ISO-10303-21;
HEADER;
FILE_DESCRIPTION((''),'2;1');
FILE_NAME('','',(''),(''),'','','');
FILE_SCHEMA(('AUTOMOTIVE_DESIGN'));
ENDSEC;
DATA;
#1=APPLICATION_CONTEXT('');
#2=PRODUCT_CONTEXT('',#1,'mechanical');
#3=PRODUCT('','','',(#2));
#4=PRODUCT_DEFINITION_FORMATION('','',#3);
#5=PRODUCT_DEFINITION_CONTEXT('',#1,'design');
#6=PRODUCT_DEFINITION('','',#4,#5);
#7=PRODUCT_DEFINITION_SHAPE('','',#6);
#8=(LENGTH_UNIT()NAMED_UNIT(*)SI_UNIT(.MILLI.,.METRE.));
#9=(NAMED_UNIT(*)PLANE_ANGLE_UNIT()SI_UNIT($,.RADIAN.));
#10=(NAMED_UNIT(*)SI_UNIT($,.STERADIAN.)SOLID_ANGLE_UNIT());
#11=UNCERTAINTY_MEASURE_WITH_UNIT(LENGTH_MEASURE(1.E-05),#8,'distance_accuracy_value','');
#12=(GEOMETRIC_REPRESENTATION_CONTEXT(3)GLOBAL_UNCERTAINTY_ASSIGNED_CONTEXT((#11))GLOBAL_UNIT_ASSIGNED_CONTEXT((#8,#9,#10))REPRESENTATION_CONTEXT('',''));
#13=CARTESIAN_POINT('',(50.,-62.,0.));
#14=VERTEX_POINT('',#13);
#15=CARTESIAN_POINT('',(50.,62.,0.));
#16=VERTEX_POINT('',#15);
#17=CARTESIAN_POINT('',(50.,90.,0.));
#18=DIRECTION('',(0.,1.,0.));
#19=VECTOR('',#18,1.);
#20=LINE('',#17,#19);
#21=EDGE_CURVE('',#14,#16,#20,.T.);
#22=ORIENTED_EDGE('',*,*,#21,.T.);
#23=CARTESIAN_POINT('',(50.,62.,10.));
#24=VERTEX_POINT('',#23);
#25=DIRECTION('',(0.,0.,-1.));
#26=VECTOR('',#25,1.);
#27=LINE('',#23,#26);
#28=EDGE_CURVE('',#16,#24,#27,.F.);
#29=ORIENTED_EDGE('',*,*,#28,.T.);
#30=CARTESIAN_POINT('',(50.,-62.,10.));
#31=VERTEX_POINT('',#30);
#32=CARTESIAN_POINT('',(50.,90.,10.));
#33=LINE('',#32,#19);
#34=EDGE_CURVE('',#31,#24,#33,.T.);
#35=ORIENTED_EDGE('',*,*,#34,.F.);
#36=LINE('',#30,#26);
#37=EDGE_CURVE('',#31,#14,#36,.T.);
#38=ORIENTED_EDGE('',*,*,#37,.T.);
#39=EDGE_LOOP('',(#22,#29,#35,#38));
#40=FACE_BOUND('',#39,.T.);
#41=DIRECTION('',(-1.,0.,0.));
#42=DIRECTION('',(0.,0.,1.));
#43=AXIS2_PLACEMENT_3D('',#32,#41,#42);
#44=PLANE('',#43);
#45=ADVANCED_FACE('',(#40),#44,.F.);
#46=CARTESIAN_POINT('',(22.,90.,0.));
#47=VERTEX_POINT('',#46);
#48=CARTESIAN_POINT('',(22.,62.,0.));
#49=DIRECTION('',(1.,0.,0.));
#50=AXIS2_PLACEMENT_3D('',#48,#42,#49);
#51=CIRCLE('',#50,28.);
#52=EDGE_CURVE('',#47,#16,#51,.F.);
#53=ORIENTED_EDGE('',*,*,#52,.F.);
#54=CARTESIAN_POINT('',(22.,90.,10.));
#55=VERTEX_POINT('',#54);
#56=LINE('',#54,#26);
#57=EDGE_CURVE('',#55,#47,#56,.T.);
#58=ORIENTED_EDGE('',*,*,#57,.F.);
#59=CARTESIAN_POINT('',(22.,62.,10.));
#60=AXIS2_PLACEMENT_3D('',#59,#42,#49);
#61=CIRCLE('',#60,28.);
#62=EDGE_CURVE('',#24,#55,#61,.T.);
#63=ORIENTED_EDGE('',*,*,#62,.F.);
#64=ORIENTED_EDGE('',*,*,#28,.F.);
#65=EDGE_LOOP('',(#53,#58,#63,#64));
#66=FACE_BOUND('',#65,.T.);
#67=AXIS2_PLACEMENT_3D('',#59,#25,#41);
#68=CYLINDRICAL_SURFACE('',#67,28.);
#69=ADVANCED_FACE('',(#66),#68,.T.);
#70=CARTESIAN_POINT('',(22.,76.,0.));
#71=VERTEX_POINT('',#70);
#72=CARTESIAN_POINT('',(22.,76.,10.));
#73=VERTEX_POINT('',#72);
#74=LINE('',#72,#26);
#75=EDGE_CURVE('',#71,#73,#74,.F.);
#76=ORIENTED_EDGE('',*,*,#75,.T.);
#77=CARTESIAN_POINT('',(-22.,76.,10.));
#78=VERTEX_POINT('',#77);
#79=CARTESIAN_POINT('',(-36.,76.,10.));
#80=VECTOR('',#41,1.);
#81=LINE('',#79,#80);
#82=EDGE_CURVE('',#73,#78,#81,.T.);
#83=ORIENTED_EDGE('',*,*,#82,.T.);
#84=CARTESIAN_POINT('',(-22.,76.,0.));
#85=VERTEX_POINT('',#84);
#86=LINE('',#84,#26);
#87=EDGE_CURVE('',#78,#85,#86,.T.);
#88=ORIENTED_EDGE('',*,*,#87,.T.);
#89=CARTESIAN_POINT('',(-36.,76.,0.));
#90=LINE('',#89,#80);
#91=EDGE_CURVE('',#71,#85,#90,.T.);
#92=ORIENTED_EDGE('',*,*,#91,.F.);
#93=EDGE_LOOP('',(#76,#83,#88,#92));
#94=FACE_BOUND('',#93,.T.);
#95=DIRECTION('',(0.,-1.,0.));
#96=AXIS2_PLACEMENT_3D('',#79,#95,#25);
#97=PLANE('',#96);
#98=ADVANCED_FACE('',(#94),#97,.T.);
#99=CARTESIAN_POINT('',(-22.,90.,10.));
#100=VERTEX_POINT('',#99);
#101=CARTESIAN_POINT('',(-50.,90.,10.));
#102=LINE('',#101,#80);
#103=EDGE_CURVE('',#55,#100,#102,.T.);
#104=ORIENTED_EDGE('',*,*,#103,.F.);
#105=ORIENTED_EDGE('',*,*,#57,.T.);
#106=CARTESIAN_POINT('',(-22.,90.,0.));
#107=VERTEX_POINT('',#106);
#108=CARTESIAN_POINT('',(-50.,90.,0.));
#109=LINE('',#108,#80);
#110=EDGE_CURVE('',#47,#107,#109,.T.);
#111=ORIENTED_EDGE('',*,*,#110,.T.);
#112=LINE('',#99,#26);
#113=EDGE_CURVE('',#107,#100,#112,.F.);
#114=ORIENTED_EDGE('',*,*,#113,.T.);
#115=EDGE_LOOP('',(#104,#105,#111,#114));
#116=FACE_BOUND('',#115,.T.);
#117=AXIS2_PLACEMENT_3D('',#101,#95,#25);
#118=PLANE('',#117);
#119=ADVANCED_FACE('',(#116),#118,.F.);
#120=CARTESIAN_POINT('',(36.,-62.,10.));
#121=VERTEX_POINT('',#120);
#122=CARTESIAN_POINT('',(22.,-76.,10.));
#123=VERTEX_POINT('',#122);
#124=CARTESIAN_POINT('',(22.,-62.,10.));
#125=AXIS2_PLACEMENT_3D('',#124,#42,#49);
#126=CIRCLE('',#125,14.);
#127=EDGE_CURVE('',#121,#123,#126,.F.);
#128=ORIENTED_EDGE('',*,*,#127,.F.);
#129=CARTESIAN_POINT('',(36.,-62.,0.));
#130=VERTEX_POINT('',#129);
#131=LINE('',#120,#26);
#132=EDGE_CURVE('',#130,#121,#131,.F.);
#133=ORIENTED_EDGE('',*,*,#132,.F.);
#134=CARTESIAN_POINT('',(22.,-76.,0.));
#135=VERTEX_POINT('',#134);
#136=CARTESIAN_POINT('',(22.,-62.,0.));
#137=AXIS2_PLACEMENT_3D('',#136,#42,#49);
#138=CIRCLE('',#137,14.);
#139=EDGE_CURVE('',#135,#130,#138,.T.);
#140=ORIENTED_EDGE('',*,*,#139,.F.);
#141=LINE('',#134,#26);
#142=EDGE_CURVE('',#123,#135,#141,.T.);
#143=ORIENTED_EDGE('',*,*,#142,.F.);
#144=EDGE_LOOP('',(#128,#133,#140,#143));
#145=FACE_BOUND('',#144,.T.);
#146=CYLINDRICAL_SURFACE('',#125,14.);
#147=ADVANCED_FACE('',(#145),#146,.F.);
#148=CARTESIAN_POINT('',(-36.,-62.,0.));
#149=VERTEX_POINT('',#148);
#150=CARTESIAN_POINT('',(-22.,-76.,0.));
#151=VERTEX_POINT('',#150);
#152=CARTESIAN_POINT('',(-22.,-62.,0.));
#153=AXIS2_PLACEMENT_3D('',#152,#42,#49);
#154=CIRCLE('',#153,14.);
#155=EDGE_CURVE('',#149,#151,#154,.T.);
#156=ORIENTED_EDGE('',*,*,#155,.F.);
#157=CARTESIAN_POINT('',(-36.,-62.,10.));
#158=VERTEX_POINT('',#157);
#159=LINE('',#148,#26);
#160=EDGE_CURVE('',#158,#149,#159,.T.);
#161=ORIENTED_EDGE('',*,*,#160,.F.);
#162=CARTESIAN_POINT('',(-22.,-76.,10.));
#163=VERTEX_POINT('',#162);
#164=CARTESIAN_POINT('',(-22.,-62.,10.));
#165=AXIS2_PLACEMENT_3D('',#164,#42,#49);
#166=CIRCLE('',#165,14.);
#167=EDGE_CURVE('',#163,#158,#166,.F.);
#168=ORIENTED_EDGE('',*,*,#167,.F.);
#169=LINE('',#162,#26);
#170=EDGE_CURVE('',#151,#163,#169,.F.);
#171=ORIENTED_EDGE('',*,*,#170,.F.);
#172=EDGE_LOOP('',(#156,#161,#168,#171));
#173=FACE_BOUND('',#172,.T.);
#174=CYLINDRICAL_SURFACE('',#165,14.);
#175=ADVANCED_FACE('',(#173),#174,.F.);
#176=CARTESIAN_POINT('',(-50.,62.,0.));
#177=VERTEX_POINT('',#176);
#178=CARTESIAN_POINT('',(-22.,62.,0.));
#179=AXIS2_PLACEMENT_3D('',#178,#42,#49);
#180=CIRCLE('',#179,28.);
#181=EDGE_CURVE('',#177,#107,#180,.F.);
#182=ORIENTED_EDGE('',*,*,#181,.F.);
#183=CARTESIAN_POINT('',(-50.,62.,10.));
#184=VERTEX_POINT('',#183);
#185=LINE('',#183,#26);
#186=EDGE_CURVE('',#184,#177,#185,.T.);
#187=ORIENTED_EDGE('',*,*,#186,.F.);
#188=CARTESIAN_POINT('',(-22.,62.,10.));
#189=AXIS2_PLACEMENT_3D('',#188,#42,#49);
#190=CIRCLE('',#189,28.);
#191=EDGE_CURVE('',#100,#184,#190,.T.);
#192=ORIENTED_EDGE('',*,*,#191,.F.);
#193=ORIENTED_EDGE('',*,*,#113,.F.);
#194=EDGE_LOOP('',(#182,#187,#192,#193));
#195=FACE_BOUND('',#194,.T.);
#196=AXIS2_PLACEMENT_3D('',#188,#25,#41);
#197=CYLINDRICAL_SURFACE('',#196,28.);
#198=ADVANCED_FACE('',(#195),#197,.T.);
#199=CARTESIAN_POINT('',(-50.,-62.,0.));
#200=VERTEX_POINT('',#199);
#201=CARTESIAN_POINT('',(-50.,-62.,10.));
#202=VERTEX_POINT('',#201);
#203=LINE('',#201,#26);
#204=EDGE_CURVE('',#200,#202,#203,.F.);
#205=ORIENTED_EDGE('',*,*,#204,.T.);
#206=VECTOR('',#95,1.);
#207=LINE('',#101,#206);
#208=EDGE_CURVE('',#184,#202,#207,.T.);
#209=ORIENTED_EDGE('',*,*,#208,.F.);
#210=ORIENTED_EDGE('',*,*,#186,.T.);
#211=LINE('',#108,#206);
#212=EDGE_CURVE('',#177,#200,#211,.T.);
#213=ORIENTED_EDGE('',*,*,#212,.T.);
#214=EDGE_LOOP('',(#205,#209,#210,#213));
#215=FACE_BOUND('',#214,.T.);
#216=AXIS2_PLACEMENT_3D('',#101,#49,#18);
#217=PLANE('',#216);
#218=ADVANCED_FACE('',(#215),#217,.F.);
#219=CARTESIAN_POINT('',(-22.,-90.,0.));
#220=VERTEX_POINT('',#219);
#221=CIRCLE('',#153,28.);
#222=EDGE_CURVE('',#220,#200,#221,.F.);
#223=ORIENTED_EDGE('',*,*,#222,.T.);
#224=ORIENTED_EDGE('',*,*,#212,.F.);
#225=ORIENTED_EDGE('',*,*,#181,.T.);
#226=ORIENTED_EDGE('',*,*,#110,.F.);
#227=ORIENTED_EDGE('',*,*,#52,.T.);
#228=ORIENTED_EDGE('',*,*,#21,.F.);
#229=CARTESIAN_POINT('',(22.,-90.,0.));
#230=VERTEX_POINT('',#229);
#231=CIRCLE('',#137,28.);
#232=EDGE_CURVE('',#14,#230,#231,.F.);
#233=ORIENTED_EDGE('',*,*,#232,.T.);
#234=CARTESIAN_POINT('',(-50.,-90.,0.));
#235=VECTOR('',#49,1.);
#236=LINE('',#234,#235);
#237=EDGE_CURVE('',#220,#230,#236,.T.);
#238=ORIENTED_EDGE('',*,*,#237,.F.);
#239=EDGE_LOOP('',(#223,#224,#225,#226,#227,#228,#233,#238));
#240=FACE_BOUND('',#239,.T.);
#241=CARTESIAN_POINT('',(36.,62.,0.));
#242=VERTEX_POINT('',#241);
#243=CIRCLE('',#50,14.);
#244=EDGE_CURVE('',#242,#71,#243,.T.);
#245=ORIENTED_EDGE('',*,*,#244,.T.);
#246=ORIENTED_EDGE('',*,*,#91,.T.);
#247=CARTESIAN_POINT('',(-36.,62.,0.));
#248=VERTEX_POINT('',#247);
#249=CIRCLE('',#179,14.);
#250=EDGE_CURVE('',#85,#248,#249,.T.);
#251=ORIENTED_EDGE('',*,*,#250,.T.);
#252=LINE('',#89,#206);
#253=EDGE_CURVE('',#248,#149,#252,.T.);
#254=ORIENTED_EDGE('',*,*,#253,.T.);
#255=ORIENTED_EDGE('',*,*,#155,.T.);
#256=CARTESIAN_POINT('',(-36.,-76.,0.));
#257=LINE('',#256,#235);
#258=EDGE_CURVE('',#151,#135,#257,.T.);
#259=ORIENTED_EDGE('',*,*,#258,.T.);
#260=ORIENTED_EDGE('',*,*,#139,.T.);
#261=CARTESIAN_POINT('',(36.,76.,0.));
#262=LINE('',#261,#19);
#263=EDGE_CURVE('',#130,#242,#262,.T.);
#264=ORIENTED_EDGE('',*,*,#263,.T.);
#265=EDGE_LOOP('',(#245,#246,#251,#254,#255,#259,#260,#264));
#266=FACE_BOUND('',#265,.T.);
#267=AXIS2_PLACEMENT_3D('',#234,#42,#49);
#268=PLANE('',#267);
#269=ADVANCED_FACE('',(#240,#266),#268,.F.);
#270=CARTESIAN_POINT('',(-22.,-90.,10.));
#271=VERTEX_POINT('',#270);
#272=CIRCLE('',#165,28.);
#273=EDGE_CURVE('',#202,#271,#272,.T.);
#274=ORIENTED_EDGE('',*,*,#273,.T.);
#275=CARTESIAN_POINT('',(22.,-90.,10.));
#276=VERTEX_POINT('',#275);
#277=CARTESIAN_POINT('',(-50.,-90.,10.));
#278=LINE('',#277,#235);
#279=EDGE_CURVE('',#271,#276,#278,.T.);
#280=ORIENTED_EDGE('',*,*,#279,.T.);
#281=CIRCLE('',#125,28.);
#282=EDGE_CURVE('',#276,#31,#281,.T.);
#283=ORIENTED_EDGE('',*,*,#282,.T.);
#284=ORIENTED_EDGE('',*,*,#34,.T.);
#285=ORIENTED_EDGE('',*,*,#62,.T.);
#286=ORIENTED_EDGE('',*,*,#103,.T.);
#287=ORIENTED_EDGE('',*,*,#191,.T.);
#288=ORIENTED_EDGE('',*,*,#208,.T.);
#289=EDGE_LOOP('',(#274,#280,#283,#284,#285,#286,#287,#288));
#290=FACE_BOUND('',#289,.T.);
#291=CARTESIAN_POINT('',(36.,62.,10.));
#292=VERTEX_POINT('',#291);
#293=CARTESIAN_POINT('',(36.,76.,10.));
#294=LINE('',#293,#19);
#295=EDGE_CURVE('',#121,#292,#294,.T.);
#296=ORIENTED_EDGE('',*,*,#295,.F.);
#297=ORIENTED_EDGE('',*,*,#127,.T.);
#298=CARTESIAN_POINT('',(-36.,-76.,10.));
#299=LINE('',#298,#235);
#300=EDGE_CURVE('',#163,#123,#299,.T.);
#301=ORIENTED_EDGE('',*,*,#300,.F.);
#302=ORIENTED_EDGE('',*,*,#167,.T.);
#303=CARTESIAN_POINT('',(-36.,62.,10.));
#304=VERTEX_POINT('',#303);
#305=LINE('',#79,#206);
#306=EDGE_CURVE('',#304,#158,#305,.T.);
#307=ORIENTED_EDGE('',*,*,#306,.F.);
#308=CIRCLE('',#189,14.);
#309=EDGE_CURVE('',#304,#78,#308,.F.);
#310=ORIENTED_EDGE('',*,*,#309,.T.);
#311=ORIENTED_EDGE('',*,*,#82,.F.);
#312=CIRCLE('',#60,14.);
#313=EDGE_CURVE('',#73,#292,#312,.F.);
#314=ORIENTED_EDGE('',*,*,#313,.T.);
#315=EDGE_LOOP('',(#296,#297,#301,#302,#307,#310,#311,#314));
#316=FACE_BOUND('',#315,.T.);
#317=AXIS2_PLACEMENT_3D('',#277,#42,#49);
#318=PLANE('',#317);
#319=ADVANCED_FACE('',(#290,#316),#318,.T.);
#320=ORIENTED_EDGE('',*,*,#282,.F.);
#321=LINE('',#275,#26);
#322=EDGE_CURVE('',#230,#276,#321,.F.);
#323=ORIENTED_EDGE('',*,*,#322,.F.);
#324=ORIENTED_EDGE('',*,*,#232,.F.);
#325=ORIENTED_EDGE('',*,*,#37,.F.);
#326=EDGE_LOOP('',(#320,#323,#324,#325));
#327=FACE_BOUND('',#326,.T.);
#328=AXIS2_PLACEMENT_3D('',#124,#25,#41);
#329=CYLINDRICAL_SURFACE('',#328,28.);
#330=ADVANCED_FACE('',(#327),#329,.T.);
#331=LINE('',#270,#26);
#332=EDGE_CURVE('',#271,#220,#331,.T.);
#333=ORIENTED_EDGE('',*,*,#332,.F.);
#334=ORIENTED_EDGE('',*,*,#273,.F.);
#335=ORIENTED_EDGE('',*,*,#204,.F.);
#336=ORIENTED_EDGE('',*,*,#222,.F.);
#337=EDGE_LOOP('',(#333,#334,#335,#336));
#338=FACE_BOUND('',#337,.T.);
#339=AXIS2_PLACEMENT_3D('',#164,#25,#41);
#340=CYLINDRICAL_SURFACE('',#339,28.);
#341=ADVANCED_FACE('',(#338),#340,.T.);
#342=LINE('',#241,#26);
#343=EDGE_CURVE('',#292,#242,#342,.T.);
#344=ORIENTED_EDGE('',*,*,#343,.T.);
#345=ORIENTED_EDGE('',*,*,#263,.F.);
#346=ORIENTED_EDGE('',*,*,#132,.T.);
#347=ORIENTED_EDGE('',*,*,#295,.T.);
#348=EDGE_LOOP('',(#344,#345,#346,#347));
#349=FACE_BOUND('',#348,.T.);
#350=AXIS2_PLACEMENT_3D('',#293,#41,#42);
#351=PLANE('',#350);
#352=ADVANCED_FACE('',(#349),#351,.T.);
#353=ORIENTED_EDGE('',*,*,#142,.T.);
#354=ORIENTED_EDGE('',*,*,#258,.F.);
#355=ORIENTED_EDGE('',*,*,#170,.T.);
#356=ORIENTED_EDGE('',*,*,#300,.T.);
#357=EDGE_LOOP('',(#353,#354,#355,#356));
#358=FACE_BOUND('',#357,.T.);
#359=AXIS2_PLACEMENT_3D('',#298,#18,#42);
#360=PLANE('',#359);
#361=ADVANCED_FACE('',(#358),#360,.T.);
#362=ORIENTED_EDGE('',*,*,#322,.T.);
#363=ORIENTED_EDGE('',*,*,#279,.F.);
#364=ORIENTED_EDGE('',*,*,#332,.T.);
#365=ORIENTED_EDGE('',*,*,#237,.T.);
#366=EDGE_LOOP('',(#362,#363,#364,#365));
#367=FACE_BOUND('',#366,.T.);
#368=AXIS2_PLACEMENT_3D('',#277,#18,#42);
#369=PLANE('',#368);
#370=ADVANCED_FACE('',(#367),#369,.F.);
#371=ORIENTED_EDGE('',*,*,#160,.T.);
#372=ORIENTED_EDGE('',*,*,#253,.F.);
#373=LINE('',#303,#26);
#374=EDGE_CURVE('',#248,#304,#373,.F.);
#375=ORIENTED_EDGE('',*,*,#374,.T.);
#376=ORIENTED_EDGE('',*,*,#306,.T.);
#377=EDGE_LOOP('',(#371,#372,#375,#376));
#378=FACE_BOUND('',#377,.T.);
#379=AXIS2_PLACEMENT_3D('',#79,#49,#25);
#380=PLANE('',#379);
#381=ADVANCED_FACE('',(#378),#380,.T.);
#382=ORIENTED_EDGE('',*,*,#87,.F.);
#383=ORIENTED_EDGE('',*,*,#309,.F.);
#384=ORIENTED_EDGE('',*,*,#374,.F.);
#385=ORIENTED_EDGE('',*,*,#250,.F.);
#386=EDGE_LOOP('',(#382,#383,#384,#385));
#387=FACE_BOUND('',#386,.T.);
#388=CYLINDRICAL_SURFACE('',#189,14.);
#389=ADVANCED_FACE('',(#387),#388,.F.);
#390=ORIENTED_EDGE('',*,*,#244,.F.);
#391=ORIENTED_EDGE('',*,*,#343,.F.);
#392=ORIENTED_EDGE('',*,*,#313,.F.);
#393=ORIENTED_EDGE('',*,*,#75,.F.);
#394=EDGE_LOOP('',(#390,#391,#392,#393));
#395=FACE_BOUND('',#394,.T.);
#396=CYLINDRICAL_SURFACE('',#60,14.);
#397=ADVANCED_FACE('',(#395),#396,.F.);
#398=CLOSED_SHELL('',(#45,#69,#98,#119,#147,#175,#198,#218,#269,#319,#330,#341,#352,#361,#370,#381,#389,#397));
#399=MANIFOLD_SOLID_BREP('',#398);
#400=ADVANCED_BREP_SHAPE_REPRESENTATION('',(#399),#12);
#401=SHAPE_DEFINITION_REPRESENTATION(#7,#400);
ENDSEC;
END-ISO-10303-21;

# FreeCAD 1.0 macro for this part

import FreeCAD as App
import Part
import Sketcher

V = App.Vector
Q = App.Units.Quantity


def edges_at(feature, points):
    """Names of the edges that pass closest to the given points."""
    edges = feature.Shape.Edges
    near = lambda p: min(range(len(edges)), key=lambda i: edges[i].distToShape(Part.Vertex(*p))[0])
    return sorted({f"Edge{near(p) + 1}" for p in points})


def add_polygon(sketch, points):
    """Adds a closed chain of lines whose ends are joined by coincident constraints."""
    first, n = sketch.GeometryCount, len(points)
    for a, b in zip(points, points[1:] + points[:1]):
        sketch.addGeometry(Part.LineSegment(App.Vector(*a, 0), App.Vector(*b, 0)), False)
    for i in range(n):
        sketch.addConstraint(Sketcher.Constraint("Coincident", first + i, 2, first + (i + 1) % n, 1))

doc = App.newDocument("Part")
body = doc.addObject("PartDesign::Body", "Body")

# Sketch on XY plane
sketch1 = body.newObject("Sketcher::SketchObject", "Sketch")
sketch1.AttachmentSupport = (doc.getObject("XY_Plane"), [""])
sketch1.MapMode = "FlatFace"
add_polygon(sketch1, [(-50, 90), (-50, -90), (50, -90), (50, 90)])  # lines 0-3
add_polygon(sketch1, [(36, -76), (-36, -76), (-36, 76), (36, 76)])  # lines 4-7
sketch1.addConstraint([
    Sketcher.Constraint("Vertical", 0),
    Sketcher.Constraint("Horizontal", 1),
    Sketcher.Constraint("Vertical", 2),
    Sketcher.Constraint("Horizontal", 3),
    Sketcher.Constraint("Horizontal", 4),
    Sketcher.Constraint("Vertical", 5),
    Sketcher.Constraint("Horizontal", 6),
    Sketcher.Constraint("Vertical", 7),
    Sketcher.Constraint("Symmetric", 0, 2, 2, 2, -1, 1),
    Sketcher.Constraint("Symmetric", 4, 2, 6, 2, -1, 1),
    Sketcher.Constraint("DistanceX", 1, 1, 1, 2, Q("100 mm")),
    Sketcher.Constraint("DistanceX", 4, 2, 4, 1, Q("72 mm")),
    Sketcher.Constraint("DistanceY", 0, 2, 0, 1, Q("180 mm")),
    Sketcher.Constraint("DistanceY", 5, 1, 5, 2, Q("152 mm")),
])
pad1 = body.newObject("PartDesign::Pad", "Pad")
pad1.Profile = sketch1
pad1.Length = 10
doc.recompute()

fillet = body.newObject("PartDesign::Fillet", "Fillet")
fillet.Base = (pad1, edges_at(pad1, [
    (-36, 76, 5),
    (-36, -76, 5),
    (36, -76, 5),
    (36, 76, 5),
]))
fillet.Radius = 14
doc.recompute()

fillet2 = body.newObject("PartDesign::Fillet", "Fillet001")
fillet2.Base = (fillet, edges_at(fillet, [
    (-50, 90, 5),
    (50, 90, 5),
    (50, -90, 5),
    (-50, -90, 5),
]))
fillet2.Radius = 28

doc.recompute()
